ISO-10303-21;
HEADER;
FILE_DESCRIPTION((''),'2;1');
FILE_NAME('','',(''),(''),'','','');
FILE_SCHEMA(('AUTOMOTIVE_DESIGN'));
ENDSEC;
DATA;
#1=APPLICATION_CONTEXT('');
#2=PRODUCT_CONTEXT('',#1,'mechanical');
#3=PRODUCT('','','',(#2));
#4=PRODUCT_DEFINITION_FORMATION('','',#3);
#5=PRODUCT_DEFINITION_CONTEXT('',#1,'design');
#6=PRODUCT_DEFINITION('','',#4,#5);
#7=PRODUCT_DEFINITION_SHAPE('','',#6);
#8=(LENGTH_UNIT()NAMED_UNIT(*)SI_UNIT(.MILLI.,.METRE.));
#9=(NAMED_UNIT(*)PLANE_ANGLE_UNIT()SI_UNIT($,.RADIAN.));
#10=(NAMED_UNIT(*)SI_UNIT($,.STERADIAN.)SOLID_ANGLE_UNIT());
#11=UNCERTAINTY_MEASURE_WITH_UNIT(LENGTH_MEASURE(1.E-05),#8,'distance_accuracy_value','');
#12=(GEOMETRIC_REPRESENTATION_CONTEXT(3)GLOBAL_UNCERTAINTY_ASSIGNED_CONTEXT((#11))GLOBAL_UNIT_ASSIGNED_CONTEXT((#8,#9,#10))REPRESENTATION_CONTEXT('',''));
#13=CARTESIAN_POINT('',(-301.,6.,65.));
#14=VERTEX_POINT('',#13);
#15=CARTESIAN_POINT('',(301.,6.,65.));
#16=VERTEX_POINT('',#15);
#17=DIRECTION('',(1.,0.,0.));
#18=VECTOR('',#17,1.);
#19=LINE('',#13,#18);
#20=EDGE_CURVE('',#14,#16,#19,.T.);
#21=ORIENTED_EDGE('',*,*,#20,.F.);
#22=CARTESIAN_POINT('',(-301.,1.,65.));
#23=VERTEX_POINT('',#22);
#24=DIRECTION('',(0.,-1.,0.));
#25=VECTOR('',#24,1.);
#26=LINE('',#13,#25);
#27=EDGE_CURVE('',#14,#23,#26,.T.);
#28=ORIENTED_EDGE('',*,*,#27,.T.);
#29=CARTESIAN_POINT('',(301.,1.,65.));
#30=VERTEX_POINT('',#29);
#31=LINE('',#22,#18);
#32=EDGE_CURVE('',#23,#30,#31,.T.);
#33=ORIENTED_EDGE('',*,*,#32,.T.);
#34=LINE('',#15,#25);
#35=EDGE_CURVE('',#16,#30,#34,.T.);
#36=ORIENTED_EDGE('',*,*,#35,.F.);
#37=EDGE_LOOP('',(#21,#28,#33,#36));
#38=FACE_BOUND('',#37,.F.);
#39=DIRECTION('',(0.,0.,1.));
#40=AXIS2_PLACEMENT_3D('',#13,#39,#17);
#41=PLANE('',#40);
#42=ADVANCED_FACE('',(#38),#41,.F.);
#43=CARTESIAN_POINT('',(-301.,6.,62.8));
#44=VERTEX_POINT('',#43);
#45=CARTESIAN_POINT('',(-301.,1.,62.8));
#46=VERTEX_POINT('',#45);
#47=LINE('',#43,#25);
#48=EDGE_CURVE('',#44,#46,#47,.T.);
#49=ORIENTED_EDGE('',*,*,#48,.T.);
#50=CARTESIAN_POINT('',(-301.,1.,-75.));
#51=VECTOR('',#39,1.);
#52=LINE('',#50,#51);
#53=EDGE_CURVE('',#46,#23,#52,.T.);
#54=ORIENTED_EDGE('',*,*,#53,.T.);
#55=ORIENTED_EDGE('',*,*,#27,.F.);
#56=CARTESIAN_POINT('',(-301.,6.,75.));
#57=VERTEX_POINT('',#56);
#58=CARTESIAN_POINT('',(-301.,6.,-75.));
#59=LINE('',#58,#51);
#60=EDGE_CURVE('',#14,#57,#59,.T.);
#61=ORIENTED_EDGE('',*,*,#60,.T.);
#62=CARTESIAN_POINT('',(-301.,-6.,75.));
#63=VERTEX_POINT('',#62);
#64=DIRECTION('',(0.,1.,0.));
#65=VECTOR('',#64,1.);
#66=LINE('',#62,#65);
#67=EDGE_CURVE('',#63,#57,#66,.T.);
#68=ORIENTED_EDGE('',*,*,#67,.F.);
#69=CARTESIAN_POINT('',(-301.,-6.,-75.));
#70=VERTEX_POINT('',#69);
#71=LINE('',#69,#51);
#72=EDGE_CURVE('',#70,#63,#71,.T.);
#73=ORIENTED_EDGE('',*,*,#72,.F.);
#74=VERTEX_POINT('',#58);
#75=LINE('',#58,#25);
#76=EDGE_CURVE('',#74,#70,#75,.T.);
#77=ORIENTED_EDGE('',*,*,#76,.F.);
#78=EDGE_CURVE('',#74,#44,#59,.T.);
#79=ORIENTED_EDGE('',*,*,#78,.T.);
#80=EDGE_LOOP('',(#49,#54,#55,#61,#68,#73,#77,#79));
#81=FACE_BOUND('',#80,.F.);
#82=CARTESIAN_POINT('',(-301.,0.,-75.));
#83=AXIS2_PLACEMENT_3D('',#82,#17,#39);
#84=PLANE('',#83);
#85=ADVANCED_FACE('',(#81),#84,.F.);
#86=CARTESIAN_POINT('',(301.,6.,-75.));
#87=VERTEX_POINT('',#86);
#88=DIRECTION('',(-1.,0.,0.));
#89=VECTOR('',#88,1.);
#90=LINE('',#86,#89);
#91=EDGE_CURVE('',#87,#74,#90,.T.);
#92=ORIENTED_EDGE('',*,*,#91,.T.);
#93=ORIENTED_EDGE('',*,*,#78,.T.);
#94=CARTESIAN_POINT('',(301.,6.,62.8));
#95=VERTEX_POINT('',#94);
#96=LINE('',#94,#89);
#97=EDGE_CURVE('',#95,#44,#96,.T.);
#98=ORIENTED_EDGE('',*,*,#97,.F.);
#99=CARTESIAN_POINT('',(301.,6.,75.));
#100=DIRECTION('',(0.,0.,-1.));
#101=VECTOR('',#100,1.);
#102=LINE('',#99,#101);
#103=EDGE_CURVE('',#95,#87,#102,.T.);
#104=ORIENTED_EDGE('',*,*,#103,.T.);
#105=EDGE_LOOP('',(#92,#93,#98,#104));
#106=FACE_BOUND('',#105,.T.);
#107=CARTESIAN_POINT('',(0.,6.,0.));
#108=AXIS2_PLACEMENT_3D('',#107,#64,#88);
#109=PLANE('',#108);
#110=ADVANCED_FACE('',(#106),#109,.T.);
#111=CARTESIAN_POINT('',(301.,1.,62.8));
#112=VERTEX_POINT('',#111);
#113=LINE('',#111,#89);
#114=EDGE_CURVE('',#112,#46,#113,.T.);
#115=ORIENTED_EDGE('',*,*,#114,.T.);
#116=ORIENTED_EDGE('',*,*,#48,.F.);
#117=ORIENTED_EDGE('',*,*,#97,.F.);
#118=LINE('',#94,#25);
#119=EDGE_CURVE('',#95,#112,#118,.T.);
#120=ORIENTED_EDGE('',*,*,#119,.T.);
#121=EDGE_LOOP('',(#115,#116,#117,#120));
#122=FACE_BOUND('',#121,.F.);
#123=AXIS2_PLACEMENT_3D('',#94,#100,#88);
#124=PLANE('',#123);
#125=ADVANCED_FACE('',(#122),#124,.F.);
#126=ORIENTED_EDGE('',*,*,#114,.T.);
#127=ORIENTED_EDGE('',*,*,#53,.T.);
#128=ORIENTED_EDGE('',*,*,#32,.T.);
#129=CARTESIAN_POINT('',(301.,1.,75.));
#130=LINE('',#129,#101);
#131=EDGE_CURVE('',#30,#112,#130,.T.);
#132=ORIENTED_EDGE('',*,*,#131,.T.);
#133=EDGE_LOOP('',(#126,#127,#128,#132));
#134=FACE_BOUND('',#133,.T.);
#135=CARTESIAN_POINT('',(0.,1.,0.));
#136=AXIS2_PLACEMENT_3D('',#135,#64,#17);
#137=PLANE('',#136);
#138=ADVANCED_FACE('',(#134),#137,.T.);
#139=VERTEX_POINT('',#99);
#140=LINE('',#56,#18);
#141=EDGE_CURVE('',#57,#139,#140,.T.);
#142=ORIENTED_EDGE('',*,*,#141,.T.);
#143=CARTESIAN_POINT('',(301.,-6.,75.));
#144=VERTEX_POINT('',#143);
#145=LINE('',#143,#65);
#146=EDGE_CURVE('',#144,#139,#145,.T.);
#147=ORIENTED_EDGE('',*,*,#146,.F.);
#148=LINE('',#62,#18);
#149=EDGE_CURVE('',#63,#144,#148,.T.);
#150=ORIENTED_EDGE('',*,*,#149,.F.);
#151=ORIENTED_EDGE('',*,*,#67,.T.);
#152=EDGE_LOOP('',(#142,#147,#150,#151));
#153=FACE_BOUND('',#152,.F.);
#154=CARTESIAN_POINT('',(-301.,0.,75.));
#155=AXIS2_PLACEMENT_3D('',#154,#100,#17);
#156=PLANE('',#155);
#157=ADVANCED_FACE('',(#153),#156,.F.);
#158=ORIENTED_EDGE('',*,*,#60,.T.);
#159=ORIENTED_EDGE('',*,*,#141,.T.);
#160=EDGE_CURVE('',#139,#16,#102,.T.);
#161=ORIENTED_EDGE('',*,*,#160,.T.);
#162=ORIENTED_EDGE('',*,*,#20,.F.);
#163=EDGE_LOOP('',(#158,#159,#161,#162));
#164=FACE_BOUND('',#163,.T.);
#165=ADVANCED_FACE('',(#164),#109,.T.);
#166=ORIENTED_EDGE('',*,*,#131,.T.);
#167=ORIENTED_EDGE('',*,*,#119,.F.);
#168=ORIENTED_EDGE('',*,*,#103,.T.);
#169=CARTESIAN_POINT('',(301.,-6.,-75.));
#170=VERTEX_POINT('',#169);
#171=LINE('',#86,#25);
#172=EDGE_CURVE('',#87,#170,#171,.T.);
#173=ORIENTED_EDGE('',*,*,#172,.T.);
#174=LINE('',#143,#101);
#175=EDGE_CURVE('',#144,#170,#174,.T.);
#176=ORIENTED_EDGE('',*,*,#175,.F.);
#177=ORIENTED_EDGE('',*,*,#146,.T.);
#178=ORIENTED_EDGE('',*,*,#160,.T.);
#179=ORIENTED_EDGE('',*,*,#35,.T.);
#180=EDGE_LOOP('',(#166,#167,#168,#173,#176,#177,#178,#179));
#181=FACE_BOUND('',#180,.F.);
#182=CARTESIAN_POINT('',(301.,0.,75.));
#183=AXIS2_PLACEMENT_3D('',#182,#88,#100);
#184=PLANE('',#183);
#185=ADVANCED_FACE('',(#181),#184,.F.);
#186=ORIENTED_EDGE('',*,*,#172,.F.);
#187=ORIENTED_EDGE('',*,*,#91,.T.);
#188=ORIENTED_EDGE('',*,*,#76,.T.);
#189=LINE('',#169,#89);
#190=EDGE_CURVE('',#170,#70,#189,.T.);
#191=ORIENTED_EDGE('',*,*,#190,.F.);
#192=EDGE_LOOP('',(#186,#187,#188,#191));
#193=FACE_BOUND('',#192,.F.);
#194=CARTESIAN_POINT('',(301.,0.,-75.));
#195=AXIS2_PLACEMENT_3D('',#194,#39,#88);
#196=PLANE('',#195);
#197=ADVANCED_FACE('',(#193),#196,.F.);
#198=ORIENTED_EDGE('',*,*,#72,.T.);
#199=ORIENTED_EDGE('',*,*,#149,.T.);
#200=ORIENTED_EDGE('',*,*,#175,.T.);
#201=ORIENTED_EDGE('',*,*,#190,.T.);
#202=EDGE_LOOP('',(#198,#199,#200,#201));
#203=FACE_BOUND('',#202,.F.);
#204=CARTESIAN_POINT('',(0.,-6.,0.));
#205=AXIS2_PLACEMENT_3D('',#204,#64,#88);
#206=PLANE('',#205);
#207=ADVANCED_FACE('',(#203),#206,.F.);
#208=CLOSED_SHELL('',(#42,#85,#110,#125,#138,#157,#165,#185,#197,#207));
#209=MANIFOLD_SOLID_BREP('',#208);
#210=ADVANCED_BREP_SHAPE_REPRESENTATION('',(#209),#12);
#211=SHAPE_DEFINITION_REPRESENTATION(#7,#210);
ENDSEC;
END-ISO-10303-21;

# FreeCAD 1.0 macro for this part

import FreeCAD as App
import Part
import Sketcher

V = App.Vector


def add_polygon(sketch, points):
    """Adds a closed chain of lines whose ends are joined by coincident constraints."""
    first, n = sketch.GeometryCount, len(points)
    for a, b in zip(points, points[1:] + points[:1]):
        sketch.addGeometry(Part.LineSegment(App.Vector(*a, 0), App.Vector(*b, 0)), False)
    for i in range(n):
        sketch.addConstraint(Sketcher.Constraint("Coincident", first + i, 2, first + (i + 1) % n, 1))

doc = App.newDocument("Part")
body = doc.addObject("PartDesign::Body", "Body")

# Sketch on XZ plane
sketch1 = body.newObject("Sketcher::SketchObject", "Sketch")
sketch1.AttachmentSupport = (doc.getObject("XZ_Plane"), [""])
sketch1.MapMode = "FlatFace"
add_polygon(sketch1, [(-301, -75), (-301, 75), (301, 75), (301, -75)])  # lines 0-3
sketch1.addConstraint(Sketcher.Constraint("Vertical", 0))
sketch1.addConstraint(Sketcher.Constraint("Horizontal", 1))
sketch1.addConstraint(Sketcher.Constraint("Vertical", 2))
sketch1.addConstraint(Sketcher.Constraint("Horizontal", 3))
sketch1.addConstraint(Sketcher.Constraint("Symmetric", 0, 2, 2, 2, -1, 1))
sketch1.addConstraint(Sketcher.Constraint("DistanceX", 1, 1, 1, 2, 602.0))
sketch1.addConstraint(Sketcher.Constraint("DistanceY", 0, 1, 0, 2, 150.0))
pad1 = body.newObject("PartDesign::Pad", "Pad")
pad1.Profile = sketch1
pad1.Length = 12
pad1.Midplane = True

# Sketch on XZ plane
sketch2 = body.newObject("Sketcher::SketchObject", "Sketch001")
sketch2.AttachmentSupport = (doc.getObject("XZ_Plane"), [""])
sketch2.MapMode = "FlatFace"
sketch2.AttachmentOffset = App.Placement(V(0, 0, -6), App.Rotation())
add_polygon(sketch2, [(301, 62.8), (-301, 62.8), (-301, 65), (301, 65)])  # lines 0-3
sketch2.addConstraint(Sketcher.Constraint("Horizontal", 0))
sketch2.addConstraint(Sketcher.Constraint("Vertical", 1))
sketch2.addConstraint(Sketcher.Constraint("Horizontal", 2))
sketch2.addConstraint(Sketcher.Constraint("Vertical", 3))
sketch2.addConstraint(Sketcher.Constraint("DistanceY", 1, 1, 1, 2, 2.2))
sketch2.addConstraint(Sketcher.Constraint("DistanceX", 0, 2, 0, 1, 602.0))
sketch2.addConstraint(Sketcher.Constraint("DistanceX", 0, 2, -1, 1, 301.0))
sketch2.addConstraint(Sketcher.Constraint("DistanceY", -1, 1, 1, 2, 65.0))
pocket1 = body.newObject("PartDesign::Pocket", "Pocket")
pocket1.Profile = sketch2
pocket1.Length = 5
pocket1.Reversed = True

doc.recompute()
